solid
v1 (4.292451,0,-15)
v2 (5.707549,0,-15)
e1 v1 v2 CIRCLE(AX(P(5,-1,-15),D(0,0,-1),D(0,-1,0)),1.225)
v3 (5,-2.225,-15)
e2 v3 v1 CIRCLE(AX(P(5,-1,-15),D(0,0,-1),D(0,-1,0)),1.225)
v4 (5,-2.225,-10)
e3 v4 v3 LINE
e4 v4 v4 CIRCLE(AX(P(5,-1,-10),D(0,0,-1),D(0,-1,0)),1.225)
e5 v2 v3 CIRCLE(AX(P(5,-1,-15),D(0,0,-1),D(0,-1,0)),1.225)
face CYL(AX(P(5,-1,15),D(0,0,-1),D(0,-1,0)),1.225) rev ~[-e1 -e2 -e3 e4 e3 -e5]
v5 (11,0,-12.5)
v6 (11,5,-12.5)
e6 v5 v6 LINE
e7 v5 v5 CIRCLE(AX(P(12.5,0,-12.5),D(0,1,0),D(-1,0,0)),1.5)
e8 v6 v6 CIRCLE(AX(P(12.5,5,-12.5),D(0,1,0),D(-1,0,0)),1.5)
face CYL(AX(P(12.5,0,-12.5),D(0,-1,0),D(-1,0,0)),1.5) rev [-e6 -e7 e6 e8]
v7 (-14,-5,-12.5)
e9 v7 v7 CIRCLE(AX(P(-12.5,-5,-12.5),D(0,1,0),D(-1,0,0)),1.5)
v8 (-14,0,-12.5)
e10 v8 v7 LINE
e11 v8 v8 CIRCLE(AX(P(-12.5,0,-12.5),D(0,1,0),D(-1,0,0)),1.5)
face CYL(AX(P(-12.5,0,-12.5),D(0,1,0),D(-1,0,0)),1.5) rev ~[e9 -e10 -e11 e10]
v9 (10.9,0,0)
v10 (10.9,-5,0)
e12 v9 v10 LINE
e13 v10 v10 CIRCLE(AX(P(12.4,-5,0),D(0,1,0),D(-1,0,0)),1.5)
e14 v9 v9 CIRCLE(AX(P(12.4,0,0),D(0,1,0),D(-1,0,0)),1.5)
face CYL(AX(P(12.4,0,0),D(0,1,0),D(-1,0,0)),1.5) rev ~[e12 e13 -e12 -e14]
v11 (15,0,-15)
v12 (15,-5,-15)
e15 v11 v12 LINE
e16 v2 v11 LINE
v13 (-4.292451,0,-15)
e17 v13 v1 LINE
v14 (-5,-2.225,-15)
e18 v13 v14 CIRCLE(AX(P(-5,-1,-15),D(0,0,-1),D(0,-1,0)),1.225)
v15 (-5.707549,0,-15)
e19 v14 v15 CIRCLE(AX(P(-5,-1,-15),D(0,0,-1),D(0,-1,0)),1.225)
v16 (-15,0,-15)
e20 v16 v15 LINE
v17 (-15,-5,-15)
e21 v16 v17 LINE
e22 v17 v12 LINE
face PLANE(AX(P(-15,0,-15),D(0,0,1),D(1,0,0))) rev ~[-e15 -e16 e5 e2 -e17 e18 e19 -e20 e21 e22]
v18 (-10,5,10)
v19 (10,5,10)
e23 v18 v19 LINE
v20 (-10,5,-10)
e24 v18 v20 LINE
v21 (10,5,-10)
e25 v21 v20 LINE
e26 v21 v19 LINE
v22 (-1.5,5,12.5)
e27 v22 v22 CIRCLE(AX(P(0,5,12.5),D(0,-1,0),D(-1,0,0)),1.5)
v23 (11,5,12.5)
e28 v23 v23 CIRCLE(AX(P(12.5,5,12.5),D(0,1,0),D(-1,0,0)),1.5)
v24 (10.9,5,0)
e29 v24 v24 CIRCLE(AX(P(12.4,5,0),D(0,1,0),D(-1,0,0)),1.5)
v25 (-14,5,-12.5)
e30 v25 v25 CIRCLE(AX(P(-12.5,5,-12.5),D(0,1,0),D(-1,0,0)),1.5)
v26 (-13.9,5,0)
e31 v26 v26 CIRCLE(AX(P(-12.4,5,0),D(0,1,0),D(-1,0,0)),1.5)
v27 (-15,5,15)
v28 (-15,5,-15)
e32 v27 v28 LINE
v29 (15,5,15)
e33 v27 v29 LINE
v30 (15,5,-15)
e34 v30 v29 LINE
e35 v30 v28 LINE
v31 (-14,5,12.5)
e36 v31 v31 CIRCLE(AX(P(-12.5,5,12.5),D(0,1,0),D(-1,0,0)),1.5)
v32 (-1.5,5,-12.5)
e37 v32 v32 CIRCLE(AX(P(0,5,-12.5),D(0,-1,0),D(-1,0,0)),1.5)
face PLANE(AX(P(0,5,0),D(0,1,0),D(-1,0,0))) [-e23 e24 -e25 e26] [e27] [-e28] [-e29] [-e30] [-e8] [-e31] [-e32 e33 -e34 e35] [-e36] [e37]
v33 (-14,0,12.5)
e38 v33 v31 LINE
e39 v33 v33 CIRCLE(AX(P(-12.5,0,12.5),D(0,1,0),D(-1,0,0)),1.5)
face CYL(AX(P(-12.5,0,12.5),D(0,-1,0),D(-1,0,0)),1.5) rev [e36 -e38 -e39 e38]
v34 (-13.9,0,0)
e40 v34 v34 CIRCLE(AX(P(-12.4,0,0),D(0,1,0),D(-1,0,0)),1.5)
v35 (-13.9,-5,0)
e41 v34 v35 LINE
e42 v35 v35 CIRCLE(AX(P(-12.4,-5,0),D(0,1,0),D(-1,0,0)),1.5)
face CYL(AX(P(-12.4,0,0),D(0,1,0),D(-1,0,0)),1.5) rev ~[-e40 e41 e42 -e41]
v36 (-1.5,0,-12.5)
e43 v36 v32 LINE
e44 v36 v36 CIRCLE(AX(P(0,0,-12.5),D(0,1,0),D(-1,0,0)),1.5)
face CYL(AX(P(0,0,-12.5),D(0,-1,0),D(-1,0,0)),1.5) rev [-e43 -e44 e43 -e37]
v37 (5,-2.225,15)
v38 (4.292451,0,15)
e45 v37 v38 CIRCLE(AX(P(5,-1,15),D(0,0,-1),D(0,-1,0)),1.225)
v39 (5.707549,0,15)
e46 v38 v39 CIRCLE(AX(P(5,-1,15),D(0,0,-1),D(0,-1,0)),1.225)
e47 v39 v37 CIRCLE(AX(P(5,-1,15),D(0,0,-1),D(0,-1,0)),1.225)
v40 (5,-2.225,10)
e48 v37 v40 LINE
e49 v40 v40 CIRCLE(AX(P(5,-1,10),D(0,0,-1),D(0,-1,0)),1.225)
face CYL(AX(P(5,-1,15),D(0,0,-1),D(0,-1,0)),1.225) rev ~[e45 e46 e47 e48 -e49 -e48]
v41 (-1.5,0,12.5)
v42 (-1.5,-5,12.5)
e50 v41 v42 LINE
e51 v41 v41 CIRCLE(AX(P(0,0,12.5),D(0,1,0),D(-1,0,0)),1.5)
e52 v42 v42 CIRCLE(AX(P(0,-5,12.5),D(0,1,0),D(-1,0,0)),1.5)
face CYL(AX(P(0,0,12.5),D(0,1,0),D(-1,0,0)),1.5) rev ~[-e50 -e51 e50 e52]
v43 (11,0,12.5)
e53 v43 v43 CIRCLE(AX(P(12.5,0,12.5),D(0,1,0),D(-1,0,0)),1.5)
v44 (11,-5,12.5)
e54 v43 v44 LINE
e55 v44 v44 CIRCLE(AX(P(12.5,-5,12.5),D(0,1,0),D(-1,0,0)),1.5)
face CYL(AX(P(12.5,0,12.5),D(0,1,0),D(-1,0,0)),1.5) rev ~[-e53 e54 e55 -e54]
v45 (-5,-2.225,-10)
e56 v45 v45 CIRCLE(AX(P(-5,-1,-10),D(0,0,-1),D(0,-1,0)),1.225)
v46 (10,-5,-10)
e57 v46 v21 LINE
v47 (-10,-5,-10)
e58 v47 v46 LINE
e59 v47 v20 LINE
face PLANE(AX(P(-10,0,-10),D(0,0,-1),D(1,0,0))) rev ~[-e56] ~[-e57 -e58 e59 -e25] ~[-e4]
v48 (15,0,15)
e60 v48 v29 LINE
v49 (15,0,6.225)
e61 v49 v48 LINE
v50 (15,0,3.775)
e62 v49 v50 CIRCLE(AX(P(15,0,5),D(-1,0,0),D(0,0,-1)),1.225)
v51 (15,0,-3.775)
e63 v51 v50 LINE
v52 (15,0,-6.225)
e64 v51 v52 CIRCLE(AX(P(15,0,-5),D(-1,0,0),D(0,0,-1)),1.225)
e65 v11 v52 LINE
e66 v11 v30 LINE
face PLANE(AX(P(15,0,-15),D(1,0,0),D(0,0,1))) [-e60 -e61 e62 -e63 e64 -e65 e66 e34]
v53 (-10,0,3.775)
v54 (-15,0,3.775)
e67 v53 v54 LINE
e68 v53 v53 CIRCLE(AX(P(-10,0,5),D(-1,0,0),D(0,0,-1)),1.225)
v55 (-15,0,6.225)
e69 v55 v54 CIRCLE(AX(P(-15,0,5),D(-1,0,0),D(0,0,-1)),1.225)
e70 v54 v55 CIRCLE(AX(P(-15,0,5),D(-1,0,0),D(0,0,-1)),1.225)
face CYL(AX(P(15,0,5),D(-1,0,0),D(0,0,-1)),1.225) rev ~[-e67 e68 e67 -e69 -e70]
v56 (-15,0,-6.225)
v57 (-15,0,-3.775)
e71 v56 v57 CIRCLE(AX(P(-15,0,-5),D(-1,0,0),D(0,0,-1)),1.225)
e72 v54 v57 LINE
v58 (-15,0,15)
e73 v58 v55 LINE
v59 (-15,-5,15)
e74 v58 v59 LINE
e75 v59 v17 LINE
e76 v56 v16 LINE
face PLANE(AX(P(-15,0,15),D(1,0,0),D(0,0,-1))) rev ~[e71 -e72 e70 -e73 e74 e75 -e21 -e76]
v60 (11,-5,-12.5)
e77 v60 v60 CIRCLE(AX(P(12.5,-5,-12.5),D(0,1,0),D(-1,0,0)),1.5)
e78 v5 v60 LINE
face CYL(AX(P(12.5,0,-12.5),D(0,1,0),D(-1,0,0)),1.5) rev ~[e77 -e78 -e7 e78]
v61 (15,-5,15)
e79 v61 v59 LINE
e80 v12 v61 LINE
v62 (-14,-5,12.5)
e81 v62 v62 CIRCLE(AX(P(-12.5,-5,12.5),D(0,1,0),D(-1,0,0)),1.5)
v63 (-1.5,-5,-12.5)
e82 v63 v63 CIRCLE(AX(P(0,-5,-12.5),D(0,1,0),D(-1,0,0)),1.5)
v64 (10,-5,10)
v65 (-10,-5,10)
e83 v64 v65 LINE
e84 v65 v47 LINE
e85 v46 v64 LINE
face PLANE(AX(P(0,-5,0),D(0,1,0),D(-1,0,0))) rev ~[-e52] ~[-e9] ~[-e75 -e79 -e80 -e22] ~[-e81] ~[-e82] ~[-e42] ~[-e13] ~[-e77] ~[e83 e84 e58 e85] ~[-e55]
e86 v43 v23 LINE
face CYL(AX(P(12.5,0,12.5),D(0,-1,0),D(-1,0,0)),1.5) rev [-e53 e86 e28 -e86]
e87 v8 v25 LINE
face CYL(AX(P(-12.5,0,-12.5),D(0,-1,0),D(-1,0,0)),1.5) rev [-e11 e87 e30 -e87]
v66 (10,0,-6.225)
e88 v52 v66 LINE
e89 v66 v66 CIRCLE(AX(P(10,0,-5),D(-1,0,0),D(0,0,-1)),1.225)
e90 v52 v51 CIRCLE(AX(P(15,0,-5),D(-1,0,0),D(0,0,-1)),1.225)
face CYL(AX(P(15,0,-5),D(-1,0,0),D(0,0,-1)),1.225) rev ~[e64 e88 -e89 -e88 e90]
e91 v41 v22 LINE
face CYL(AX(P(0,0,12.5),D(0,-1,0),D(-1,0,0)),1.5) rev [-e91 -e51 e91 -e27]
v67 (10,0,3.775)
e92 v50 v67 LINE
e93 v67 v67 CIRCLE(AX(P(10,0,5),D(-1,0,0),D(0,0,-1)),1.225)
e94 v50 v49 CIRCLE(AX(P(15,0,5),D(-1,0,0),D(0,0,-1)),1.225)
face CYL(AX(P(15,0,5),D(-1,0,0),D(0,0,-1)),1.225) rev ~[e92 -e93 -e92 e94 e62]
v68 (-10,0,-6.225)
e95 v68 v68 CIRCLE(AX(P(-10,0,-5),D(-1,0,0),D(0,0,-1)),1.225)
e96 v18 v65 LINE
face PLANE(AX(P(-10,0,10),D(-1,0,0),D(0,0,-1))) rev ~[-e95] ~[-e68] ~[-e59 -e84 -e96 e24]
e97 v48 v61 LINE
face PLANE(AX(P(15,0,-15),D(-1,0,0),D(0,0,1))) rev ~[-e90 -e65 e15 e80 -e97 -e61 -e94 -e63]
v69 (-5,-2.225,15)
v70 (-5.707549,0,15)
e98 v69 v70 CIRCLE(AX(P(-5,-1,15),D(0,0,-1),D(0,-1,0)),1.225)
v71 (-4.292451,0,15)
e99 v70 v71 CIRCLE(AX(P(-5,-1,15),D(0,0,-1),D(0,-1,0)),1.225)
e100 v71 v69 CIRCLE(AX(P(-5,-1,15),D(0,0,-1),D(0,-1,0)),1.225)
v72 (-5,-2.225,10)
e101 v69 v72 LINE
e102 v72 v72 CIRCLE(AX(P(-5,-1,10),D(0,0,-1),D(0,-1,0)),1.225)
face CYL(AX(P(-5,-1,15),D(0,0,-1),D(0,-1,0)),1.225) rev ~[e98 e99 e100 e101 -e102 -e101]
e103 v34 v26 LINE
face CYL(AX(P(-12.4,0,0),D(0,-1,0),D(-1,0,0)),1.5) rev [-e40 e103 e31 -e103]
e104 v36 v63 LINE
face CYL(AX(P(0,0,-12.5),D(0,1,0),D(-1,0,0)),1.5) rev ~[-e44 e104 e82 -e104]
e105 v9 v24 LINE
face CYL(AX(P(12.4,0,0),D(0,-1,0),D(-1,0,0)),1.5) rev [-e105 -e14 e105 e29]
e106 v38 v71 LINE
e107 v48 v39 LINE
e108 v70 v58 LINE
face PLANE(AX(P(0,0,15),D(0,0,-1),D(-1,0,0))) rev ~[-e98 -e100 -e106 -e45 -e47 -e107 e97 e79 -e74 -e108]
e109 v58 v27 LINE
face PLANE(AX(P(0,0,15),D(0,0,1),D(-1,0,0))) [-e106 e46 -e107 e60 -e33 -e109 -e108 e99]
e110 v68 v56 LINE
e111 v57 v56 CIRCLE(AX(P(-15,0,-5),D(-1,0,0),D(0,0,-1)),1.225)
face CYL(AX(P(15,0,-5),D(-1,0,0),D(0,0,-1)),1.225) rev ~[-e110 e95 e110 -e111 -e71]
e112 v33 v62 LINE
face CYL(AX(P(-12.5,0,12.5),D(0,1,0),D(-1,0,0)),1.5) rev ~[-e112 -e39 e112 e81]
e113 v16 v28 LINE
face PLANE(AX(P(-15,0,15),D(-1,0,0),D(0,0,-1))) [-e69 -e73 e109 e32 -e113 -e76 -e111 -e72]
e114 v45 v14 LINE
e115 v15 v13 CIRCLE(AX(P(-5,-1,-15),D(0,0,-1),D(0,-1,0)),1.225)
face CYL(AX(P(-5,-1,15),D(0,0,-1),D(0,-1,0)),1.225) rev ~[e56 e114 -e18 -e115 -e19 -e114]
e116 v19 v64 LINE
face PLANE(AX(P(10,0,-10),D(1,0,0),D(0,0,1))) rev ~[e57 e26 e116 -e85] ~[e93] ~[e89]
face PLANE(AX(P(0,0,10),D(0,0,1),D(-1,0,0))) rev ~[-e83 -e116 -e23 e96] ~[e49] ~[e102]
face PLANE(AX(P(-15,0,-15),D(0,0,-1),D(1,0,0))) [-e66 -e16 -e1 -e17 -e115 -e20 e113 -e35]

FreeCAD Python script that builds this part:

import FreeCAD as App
import Part
import Sketcher

V = App.Vector

doc = App.newDocument("Part")
params = doc.addObject("Spreadsheet::Sheet", "Params")
for row, (alias, value) in enumerate([
    ("sketch1_diameter", "3 mm"),
    ("sketch1_width", "30 mm"),
    ("sketch1_width2", "20 mm"),
    ("pad1_length", "10 mm"),
    ("sketch2_diameter", "2.45 mm"),
    ("hole_diameter", "2.45 mm"),
    ("hole_depth", "30 mm"),
    ("sketch3_diameter", "2.45 mm"),
    ("hole2_diameter", "2.45 mm"),
    ("hole2_depth", "30 mm"),
], start=1):
    params.set(f"A{row}", alias)
    params.set(f"B{row}", "=" + value)
    params.setAlias(f"B{row}", alias)

body = doc.addObject("PartDesign::Body", "Body")

sketch1 = body.newObject("Sketcher::SketchObject", "Sketch")
sketch1.AttachmentSupport = (doc.getObject("XZ_Plane"), [""])
sketch1.MapMode = "FlatFace"
sketch1.addGeometry(Part.LineSegment(V(-15, 15, 0), V(15, 15, 0)), False)
sketch1.addGeometry(Part.LineSegment(V(15, 15, 0), V(15, -15, 0)), False)
sketch1.addGeometry(Part.LineSegment(V(15, -15, 0), V(-15, -15, 0)), False)
sketch1.addGeometry(Part.LineSegment(V(-15, -15, 0), V(-15, 15, 0)), False)
sketch1.addGeometry(Part.LineSegment(V(-10, 10, 0), V(-10, -10, 0)), False)
sketch1.addGeometry(Part.LineSegment(V(-10, -10, 0), V(10, -10, 0)), False)
sketch1.addGeometry(Part.LineSegment(V(10, -10, 0), V(10, 10, 0)), False)
sketch1.addGeometry(Part.LineSegment(V(10, 10, 0), V(-10, 10, 0)), False)
sketch1.addGeometry(Part.Circle(V(0, 12.5, 0), V(0, 0, 1), 1.5), False)
sketch1.addGeometry(Part.Circle(V(0, -12.5, 0), V(0, 0, 1), 1.5), False)
sketch1.addGeometry(Part.Circle(V(-12.5, -12.5, 0), V(0, 0, 1), 1.5), False)
sketch1.addGeometry(Part.Circle(V(-12.4, 0, 0), V(0, 0, 1), 1.5), False)
sketch1.addGeometry(Part.Circle(V(-12.5, 12.5, 0), V(0, 0, 1), 1.5), False)
sketch1.addGeometry(Part.Circle(V(12.5, -12.5, 0), V(0, 0, 1), 1.5), False)
sketch1.addGeometry(Part.Circle(V(12.4, 0, 0), V(0, 0, 1), 1.5), False)
sketch1.addGeometry(Part.Circle(V(12.5, 12.5, 0), V(0, 0, 1), 1.5), False)
sketch1.addConstraint(Sketcher.Constraint("Coincident", 0, 2, 1, 1))
sketch1.addConstraint(Sketcher.Constraint("Coincident", 1, 2, 2, 1))
sketch1.addConstraint(Sketcher.Constraint("Coincident", 2, 2, 3, 1))
sketch1.addConstraint(Sketcher.Constraint("Coincident", 3, 2, 0, 1))
sketch1.addConstraint(Sketcher.Constraint("Coincident", 4, 2, 5, 1))
sketch1.addConstraint(Sketcher.Constraint("Coincident", 5, 2, 6, 1))
sketch1.addConstraint(Sketcher.Constraint("Coincident", 6, 2, 7, 1))
sketch1.addConstraint(Sketcher.Constraint("Coincident", 7, 2, 4, 1))
sketch1.addConstraint(Sketcher.Constraint("Horizontal", 0))
sketch1.addConstraint(Sketcher.Constraint("Vertical", 1))
sketch1.addConstraint(Sketcher.Constraint("Horizontal", 2))
sketch1.addConstraint(Sketcher.Constraint("Vertical", 3))
sketch1.addConstraint(Sketcher.Constraint("Vertical", 4))
sketch1.addConstraint(Sketcher.Constraint("Horizontal", 5))
sketch1.addConstraint(Sketcher.Constraint("Vertical", 6))
sketch1.addConstraint(Sketcher.Constraint("Horizontal", 7))
sketch1.addConstraint(Sketcher.Constraint("Equal", 8, 9))
sketch1.addConstraint(Sketcher.Constraint("Equal", 9, 10))
sketch1.addConstraint(Sketcher.Constraint("Equal", 10, 11))
sketch1.addConstraint(Sketcher.Constraint("Equal", 11, 12))
sketch1.addConstraint(Sketcher.Constraint("Equal", 12, 13))
sketch1.addConstraint(Sketcher.Constraint("Equal", 13, 14))
sketch1.addConstraint(Sketcher.Constraint("Equal", 14, 15))
sketch1.addConstraint(Sketcher.Constraint("Symmetric", 8, 3, 9, 3, -1, 1))
sketch1.addConstraint(Sketcher.Constraint("Symmetric", 12, 3, 13, 3, -1, 1))
sketch1.addConstraint(Sketcher.Constraint("Symmetric", 11, 3, 14, 3, -1, 1))
sketch1.addConstraint(Sketcher.Constraint("Symmetric", 10, 3, 15, 3, -1, 1))
sketch1.addConstraint(Sketcher.Constraint("Symmetric", 0, 2, 2, 2, -1, 1))
sketch1.addConstraint(Sketcher.Constraint("Symmetric", 4, 2, 6, 2, -1, 1))
sketch1.addConstraint(Sketcher.Constraint("Symmetric", 10, 3, 13, 3, -2))
sketch1.addConstraint(Sketcher.Constraint("PointOnObject", 8, 3, -2))
sketch1.addConstraint(Sketcher.Constraint("PointOnObject", 11, 3, -1))
sketch1.addConstraint(Sketcher.Constraint("Horizontal", 9, 3, 10, 3))
sketch1.addConstraint(Sketcher.Constraint("Equal", 2, 1))
sketch1.addConstraint(Sketcher.Constraint("Equal", 7, 4))
sketch1.addConstraint(Sketcher.Constraint("Diameter", 8, 3.0))
sketch1.addConstraint(Sketcher.Constraint("DistanceX", 0, 1, 0, 2, 30.0))
sketch1.addConstraint(Sketcher.Constraint("DistanceX", 5, 1, 5, 2, 20.0))
sketch1.addConstraint(Sketcher.Constraint("DistanceY", -1, 1, 8, 3, 12.5))
sketch1.addConstraint(Sketcher.Constraint("DistanceX", 10, 3, -1, 1, 12.5))
sketch1.addConstraint(Sketcher.Constraint("DistanceX", 11, 3, -1, 1, 12.4))
sketch1.setExpression("Constraints[35]", "Params.sketch1_diameter")
sketch1.setExpression("Constraints[36]", "Params.sketch1_width")
sketch1.setExpression("Constraints[37]", "Params.sketch1_width2")
pad1 = body.newObject("PartDesign::Pad", "Pad")
pad1.Profile = sketch1
pad1.setExpression("Length", "Params.pad1_length")
pad1.Midplane = True

sketch2 = body.newObject("Sketcher::SketchObject", "Sketch001")
sketch2.AttachmentSupport = (doc.getObject("XY_Plane"), [""])
sketch2.MapMode = "FlatFace"
sketch2.AttachmentOffset = App.Placement(V(0, 0, 15), App.Rotation())
sketch2.addGeometry(Part.Circle(V(5, -1, 0), V(0, 0, 1), 1.2), False)
sketch2.addGeometry(Part.Circle(V(-5, -1, 0), V(0, 0, 1), 1.2), False)
sketch2.addConstraint(Sketcher.Constraint("Equal", 0, 1))
sketch2.addConstraint(Sketcher.Constraint("Symmetric", 0, 3, 1, 3, -2))
sketch2.addConstraint(Sketcher.Constraint("Diameter", 0, 2.45))
sketch2.addConstraint(Sketcher.Constraint("DistanceX", -1, 1, 0, 3, 5.0))
sketch2.addConstraint(Sketcher.Constraint("DistanceY", 0, 3, -1, 1, 1.0))
sketch2.setExpression("Constraints[2]", "Params.sketch2_diameter")
doc.recompute()
hole = body.newObject("PartDesign::Hole", "Hole")
hole.Profile = sketch2
hole.ThreadType = "None"
hole.setExpression("Diameter", "Params.hole_diameter")
hole.DepthType = "Dimension"
hole.setExpression("Depth", "Params.hole_depth")
hole.DrillPoint = "Flat"

sketch3 = body.newObject("Sketcher::SketchObject", "Sketch002")
sketch3.AttachmentSupport = (doc.getObject("YZ_Plane"), [""])
sketch3.MapMode = "FlatFace"
sketch3.AttachmentOffset = App.Placement(V(0, 0, 15), App.Rotation())
sketch3.addGeometry(Part.Circle(V(0, -5, 0), V(0, 0, 1), 1.2), False)
sketch3.addGeometry(Part.Circle(V(0, 5, 0), V(0, 0, 1), 1.2), False)
sketch3.addConstraint(Sketcher.Constraint("Equal", 0, 1))
sketch3.addConstraint(Sketcher.Constraint("Symmetric", 0, 3, 1, 3, -1, 1))
sketch3.addConstraint(Sketcher.Constraint("PointOnObject", 0, 3, -2))
sketch3.addConstraint(Sketcher.Constraint("Diameter", 0, 2.45))
sketch3.addConstraint(Sketcher.Constraint("DistanceY", 0, 3, -1, 1, 5.0))
sketch3.setExpression("Constraints[3]", "Params.sketch3_diameter")
doc.recompute()
hole2 = body.newObject("PartDesign::Hole", "Hole001")
hole2.Profile = sketch3
hole2.ThreadType = "None"
hole2.setExpression("Diameter", "Params.hole2_diameter")
hole2.DepthType = "Dimension"
hole2.setExpression("Depth", "Params.hole2_depth")
hole2.DrillPoint = "Flat"

doc.recompute()
